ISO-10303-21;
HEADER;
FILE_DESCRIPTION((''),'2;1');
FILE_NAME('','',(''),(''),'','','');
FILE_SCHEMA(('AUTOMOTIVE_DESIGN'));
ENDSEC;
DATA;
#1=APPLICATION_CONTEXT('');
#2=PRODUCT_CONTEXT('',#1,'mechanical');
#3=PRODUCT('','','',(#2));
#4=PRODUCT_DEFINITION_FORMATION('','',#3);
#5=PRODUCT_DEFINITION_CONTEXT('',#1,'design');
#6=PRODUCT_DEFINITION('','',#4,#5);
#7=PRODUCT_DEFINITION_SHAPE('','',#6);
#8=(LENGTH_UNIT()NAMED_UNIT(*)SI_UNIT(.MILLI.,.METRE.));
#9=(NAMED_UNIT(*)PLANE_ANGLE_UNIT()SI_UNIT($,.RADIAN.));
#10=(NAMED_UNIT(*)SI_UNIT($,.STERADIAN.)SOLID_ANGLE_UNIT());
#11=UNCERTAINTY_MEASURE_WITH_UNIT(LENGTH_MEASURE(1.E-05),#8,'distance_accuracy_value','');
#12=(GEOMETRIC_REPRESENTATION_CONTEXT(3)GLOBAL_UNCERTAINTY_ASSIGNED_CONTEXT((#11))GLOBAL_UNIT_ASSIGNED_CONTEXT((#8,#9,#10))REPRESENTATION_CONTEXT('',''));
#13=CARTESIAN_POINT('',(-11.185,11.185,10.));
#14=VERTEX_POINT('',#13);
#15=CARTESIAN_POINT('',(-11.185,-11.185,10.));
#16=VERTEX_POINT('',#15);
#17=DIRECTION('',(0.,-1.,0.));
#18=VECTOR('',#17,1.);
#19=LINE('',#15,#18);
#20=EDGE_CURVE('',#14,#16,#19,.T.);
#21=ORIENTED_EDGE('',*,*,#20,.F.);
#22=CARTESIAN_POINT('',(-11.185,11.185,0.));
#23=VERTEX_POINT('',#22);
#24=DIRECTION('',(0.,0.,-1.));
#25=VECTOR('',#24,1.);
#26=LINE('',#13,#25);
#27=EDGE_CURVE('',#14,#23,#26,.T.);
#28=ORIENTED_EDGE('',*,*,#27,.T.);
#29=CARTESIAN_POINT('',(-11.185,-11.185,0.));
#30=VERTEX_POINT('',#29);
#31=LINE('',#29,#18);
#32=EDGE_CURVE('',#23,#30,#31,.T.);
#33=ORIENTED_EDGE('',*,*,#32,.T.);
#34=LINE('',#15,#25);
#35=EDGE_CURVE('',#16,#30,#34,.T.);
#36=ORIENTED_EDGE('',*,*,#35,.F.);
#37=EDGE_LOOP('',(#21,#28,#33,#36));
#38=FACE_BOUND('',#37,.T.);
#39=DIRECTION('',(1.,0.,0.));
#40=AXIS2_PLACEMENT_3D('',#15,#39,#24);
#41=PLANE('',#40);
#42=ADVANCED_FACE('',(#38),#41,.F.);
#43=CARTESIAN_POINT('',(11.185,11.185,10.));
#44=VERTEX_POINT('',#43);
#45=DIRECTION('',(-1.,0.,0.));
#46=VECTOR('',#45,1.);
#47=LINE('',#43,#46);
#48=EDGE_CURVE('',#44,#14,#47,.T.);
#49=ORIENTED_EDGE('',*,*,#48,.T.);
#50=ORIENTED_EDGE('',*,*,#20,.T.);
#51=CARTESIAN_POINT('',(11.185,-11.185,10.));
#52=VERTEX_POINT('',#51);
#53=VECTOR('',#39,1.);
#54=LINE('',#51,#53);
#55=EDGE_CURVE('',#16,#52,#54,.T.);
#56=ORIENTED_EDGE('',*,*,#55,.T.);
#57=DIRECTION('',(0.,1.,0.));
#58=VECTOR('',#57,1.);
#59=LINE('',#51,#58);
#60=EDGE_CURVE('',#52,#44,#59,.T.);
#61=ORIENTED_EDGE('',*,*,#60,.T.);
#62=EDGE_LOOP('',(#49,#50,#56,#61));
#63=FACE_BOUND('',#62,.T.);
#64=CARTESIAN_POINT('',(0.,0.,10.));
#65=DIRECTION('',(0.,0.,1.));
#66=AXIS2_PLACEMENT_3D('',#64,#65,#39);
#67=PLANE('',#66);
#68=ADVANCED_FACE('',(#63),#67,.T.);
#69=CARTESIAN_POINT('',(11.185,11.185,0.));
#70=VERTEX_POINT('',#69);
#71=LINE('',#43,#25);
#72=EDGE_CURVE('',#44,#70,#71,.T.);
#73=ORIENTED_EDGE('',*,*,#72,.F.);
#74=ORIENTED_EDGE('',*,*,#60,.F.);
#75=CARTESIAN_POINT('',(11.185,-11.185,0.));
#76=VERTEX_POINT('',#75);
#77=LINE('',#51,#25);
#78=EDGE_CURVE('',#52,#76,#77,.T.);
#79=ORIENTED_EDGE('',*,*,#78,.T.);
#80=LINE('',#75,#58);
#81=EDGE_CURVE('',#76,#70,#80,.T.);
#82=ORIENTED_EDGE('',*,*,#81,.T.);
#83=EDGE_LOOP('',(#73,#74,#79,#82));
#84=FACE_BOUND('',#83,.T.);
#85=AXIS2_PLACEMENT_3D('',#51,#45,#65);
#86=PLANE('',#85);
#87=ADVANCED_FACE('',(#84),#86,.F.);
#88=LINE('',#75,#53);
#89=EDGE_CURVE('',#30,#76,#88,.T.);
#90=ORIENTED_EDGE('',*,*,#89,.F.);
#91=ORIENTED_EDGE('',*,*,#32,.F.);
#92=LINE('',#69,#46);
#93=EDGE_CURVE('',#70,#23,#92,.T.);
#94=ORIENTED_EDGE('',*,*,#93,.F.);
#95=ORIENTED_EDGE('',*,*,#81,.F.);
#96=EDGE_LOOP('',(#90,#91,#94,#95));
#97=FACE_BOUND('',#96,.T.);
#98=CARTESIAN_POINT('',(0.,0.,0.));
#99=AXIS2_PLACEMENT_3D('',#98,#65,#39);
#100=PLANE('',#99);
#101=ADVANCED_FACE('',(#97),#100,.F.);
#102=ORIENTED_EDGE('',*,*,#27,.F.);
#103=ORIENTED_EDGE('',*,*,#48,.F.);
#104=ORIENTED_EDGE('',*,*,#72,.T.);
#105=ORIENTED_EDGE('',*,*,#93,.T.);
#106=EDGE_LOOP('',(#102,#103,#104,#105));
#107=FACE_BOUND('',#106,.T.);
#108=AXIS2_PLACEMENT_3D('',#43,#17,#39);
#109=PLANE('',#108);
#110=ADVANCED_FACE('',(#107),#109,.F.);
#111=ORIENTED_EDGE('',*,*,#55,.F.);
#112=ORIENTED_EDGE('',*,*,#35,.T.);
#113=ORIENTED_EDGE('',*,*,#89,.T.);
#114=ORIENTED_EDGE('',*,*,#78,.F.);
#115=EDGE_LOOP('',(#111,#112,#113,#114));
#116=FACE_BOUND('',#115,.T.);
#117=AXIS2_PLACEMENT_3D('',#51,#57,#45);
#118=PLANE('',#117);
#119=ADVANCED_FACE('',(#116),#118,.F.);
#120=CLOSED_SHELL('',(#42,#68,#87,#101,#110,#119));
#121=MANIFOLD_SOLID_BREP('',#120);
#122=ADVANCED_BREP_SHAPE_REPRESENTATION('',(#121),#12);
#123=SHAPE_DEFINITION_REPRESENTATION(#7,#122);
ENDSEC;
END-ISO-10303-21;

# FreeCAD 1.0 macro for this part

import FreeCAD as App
import Part
import Sketcher
Q = App.Units.Quantity


def add_polygon(sketch, points):
    """Adds a closed chain of lines whose ends are joined by coincident constraints."""
    first, n = sketch.GeometryCount, len(points)
    for a, b in zip(points, points[1:] + points[:1]):
        sketch.addGeometry(Part.LineSegment(App.Vector(*a, 0), App.Vector(*b, 0)), False)
    for i in range(n):
        sketch.addConstraint(Sketcher.Constraint("Coincident", first + i, 2, first + (i + 1) % n, 1))

doc = App.newDocument("Part")
body = doc.addObject("PartDesign::Body", "Body")

# Sketch on XY plane
sketch1 = body.newObject("Sketcher::SketchObject", "Sketch")
sketch1.AttachmentSupport = (doc.getObject("XY_Plane"), [""])
sketch1.MapMode = "FlatFace"
add_polygon(sketch1, [(-11, 11), (-11, -11), (11, -11), (11, 11)])  # lines 0-3
sketch1.addConstraint([
    Sketcher.Constraint("Vertical", 0),
    Sketcher.Constraint("Horizontal", 1),
    Sketcher.Constraint("Vertical", 2),
    Sketcher.Constraint("Horizontal", 3),
    Sketcher.Constraint("Symmetric", 0, 2, 2, 2, -1, 1),
    Sketcher.Constraint("Equal", 3, 0),
    Sketcher.Constraint("DistanceX", 1, 1, 1, 2, Q("22.37 mm")),
])
pad1 = body.newObject("PartDesign::Pad", "Pad")
pad1.Profile = sketch1
pad1.Length = 10

doc.recompute()
